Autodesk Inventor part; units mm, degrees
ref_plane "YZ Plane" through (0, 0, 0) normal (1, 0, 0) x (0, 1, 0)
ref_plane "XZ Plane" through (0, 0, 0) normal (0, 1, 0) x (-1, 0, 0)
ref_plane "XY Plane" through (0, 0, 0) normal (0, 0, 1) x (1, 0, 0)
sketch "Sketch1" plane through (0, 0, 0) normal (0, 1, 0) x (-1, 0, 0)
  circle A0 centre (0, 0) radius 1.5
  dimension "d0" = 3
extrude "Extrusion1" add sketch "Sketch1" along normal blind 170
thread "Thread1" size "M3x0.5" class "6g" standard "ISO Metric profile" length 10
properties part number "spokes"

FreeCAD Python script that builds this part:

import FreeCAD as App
import Part
import Sketcher

V = App.Vector
Q = App.Units.Quantity

doc = App.newDocument("Part")
params = doc.addObject("Spreadsheet::Sheet", "Params")
for row, (alias, value) in enumerate([
    ("sketch1_diameter", "3 mm"),
    ("pad1_length", "170 mm"),
], start=1):
    params.set(f"A{row}", alias)
    params.set(f"B{row}", "=" + value)
    params.setAlias(f"B{row}", alias)

body = doc.addObject("PartDesign::Body", "Body")

sketch1 = body.newObject("Sketcher::SketchObject", "Sketch")
sketch1.AttachmentSupport = (doc.getObject("XZ_Plane"), [""])
sketch1.MapMode = "FlatFace"
sketch1.addGeometry(Part.Circle(V(0, 0, 0), V(0, 0, 1), 1.5), False)
sketch1.addConstraint([
    Sketcher.Constraint("Coincident", 0, 3, -1, 1),
    Sketcher.Constraint("Diameter", 0, Q("3 mm")),
])
sketch1.setExpression("Constraints[1]", "Params.sketch1_diameter")
pad1 = body.newObject("PartDesign::Pad", "Pad")
pad1.Profile = sketch1
pad1.setExpression("Length", "Params.pad1_length")
pad1.Reversed = True

doc.recompute()
